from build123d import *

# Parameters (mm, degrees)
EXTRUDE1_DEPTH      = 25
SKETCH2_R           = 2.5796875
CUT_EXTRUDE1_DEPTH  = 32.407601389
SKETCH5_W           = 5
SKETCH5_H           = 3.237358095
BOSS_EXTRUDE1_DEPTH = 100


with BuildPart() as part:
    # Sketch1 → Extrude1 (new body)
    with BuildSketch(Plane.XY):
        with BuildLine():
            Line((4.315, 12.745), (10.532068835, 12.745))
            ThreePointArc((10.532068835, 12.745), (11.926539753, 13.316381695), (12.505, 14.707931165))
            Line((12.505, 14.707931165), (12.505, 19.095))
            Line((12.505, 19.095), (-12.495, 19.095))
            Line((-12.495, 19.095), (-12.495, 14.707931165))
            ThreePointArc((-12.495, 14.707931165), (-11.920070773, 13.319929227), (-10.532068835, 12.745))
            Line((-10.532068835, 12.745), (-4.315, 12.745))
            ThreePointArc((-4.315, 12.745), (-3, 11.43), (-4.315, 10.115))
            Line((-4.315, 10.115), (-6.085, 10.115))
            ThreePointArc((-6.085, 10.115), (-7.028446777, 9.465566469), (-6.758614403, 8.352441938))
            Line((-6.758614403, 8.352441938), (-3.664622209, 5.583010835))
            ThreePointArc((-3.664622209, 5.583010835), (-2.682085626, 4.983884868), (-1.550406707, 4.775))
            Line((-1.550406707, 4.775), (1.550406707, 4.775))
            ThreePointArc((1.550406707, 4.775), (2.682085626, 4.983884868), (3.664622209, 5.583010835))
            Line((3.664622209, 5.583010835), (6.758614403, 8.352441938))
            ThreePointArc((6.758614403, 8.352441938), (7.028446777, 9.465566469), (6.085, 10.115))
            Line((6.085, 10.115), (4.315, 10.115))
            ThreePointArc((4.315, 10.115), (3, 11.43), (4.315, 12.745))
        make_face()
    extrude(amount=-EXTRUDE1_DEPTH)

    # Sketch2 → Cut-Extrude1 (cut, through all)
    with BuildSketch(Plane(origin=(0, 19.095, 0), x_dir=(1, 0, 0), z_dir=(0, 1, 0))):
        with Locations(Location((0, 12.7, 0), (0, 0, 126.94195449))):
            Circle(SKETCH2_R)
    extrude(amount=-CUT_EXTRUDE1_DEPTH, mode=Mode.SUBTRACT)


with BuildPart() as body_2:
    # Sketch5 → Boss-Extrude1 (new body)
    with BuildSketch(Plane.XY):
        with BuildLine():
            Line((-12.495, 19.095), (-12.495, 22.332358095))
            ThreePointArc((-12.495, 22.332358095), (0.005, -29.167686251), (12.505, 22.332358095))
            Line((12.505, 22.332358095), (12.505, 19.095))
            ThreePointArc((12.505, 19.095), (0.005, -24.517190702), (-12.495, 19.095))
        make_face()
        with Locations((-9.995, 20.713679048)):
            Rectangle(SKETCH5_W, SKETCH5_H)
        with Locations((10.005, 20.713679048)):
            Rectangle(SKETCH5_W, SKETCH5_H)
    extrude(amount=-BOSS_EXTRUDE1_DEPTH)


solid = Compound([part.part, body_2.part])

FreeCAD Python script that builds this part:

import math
import FreeCAD as App
import Part
import Sketcher
Q = App.Units.Quantity

doc = App.newDocument("Part")
params = doc.addObject("Spreadsheet::Sheet", "Params")
for row, (alias, value) in enumerate([
    ("sketch1_width", "25 mm"),
    ("sketch1_radius", "1.01 mm"),
    ("sketch1_radius2", "3.17 mm"),
    ("sketch1_width2", "1.77 mm"),
    ("pad1_length", "25 mm"),
    ("sketch3_width", "5 mm"),
    ("pad2_length", "100 mm"),
], start=1):
    params.set(f"A{row}", alias)
    params.set(f"B{row}", "=" + value)
    params.setAlias(f"B{row}", alias)

body = doc.addObject("PartDesign::Body", "Body")

# Sketch on XY plane
sketch1 = body.newObject("Sketcher::SketchObject", "Sketch")
sketch1.AttachmentSupport = (doc.getObject("XY_Plane"), [""])
sketch1.MapMode = "FlatFace"
sketch1.addGeometry([
    Part.LineSegment(App.Vector(4.3, 12.7, 0), App.Vector(10.5, 12.7, 0)),  # 0
    Part.ArcOfCircle(Part.Circle(App.Vector(10.5, 14.7, 0), App.Vector(0, 0, 1), 2), math.radians(-90), math.radians(0)),  # 1
    Part.LineSegment(App.Vector(12.5, 14.7, 0), App.Vector(12.5, 19.1, 0)),  # 2
    Part.LineSegment(App.Vector(12.5, 19.1, 0), App.Vector(-12.5, 19.1, 0)),  # 3
    Part.LineSegment(App.Vector(-12.5, 19.1, 0), App.Vector(-12.5, 14.7, 0)),  # 4
    Part.ArcOfCircle(Part.Circle(App.Vector(-10.5, 14.7, 0), App.Vector(0, 0, 1), 2), math.radians(180), math.radians(270)),  # 5
    Part.LineSegment(App.Vector(-10.5, 12.7, 0), App.Vector(-4.3, 12.7, 0)),  # 6
    Part.ArcOfCircle(Part.Circle(App.Vector(-4.3, 11.4, 0), App.Vector(0, 0, 1), 1.3), math.radians(-90), math.radians(90)),  # 7
    Part.LineSegment(App.Vector(-4.3, 10.1, 0), App.Vector(-6.1, 10.1, 0)),  # 8
    Part.ArcOfCircle(Part.Circle(App.Vector(-6.1, 9.1, 0), App.Vector(0, 0, 1), 1), math.radians(90), math.radians(228)),  # 9
    Part.LineSegment(App.Vector(-6.8, 8.4, 0), App.Vector(-3.7, 5.6, 0)),  # 10
    Part.ArcOfCircle(Part.Circle(App.Vector(-1.6, 7.9, 0), App.Vector(0, 0, 1), 3.2), math.radians(-132), math.radians(-90)),  # 11
    Part.LineSegment(App.Vector(-1.6, 4.8, 0), App.Vector(1.6, 4.8, 0)),  # 12
    Part.ArcOfCircle(Part.Circle(App.Vector(1.6, 7.9, 0), App.Vector(0, 0, 1), 3.2), math.radians(-90), math.radians(-48)),  # 13
    Part.LineSegment(App.Vector(3.7, 5.6, 0), App.Vector(6.8, 8.4, 0)),  # 14
    Part.ArcOfCircle(Part.Circle(App.Vector(6.1, 9.1, 0), App.Vector(0, 0, 1), 1), math.radians(-48), math.radians(90)),  # 15
    Part.LineSegment(App.Vector(6.1, 10.1, 0), App.Vector(4.3, 10.1, 0)),  # 16
    Part.ArcOfCircle(Part.Circle(App.Vector(4.3, 11.4, 0), App.Vector(0, 0, 1), 1.3), math.radians(90), math.radians(270)),  # 17
], False)
sketch1.addConstraint([
    Sketcher.Constraint("Coincident", 0, 2, 1, 1),
    Sketcher.Constraint("Coincident", 1, 2, 2, 1),
    Sketcher.Constraint("Coincident", 2, 2, 3, 1),
    Sketcher.Constraint("Coincident", 3, 2, 4, 1),
    Sketcher.Constraint("Tangent", 4, 2, 5, 1),
    Sketcher.Constraint("Tangent", 5, 2, 6, 1),
    Sketcher.Constraint("Tangent", 6, 2, 7, 2),
    Sketcher.Constraint("Tangent", 7, 1, 8, 1),
    Sketcher.Constraint("Tangent", 8, 2, 9, 1),
    Sketcher.Constraint("Tangent", 9, 2, 10, 1),
    Sketcher.Constraint("Tangent", 10, 2, 11, 1),
    Sketcher.Constraint("Tangent", 11, 2, 12, 1),
    Sketcher.Constraint("Tangent", 12, 2, 13, 1),
    Sketcher.Constraint("Tangent", 13, 2, 14, 1),
    Sketcher.Constraint("Tangent", 14, 2, 15, 1),
    Sketcher.Constraint("Tangent", 15, 2, 16, 1),
    Sketcher.Constraint("Tangent", 16, 2, 17, 2),
    Sketcher.Constraint("Tangent", 17, 1, 0, 1),
    Sketcher.Constraint("Horizontal", 0),
    Sketcher.Constraint("Vertical", 2),
    Sketcher.Constraint("Horizontal", 3),
    Sketcher.Constraint("Vertical", 4),
    Sketcher.Constraint("Horizontal", 6),
    Sketcher.Constraint("Horizontal", 8),
    Sketcher.Constraint("Horizontal", 12),
    Sketcher.Constraint("Horizontal", 16),
    Sketcher.Constraint("Equal", 1, 5),
    Sketcher.Constraint("Equal", 11, 13),
    Sketcher.Constraint("Equal", 9, 15),
    Sketcher.Constraint("Equal", 7, 17),
    Sketcher.Constraint("Symmetric", 9, 3, 15, 3, -2),
    Sketcher.Constraint("Horizontal", 5, 3, 1, 2),
    Sketcher.Constraint("Horizontal", 10, 2, 13, 2),
    Sketcher.Constraint("Equal", 0, 6),
    Sketcher.Constraint("Equal", 8, 16),
    Sketcher.Constraint("DistanceX", 3, 2, 3, 1, Q("25 mm")),
    Sketcher.Constraint("Radius", 9, Q("1.01 mm")),
    Sketcher.Constraint("Radius", 11, Q("3.17 mm")),
    Sketcher.Constraint("Radius", 7, Q("1.315 mm")),
    Sketcher.Constraint("DistanceX", 8, 2, 8, 1, Q("1.77 mm")),
    Sketcher.Constraint("DistanceX", 7, 3, 15, 3, Q("10.4 mm")),
    Sketcher.Constraint("DistanceY", 13, 3, 0, 2, Q("4.8 mm")),
    Sketcher.Constraint("DistanceY", -1, 1, 7, 3, Q("11.43 mm")),
    Sketcher.Constraint("Radius", 1, Q("1.962931 mm")),
    Sketcher.Constraint("DistanceX", 0, 2, 1, 3, Q("0.01 mm")),
    Sketcher.Constraint("DistanceY", 0, 2, 2, 2, Q("6.35 mm")),
    Sketcher.Constraint("DistanceX", 12, 1, 12, 2, Q("3.100813 mm")),
])
sketch1.setExpression("Constraints[35]", "Params.sketch1_width")
sketch1.setExpression("Constraints[36]", "Params.sketch1_radius")
sketch1.setExpression("Constraints[37]", "Params.sketch1_radius2")
sketch1.setExpression("Constraints[39]", "Params.sketch1_width2")
pad1 = body.newObject("PartDesign::Pad", "Pad")
pad1.Profile = sketch1
pad1.setExpression("Length", "Params.pad1_length")
pad1.Reversed = True

# Sketch on XZ plane
sketch2 = body.newObject("Sketcher::SketchObject", "Sketch001")
sketch2.AttachmentSupport = (doc.getObject("XZ_Plane"), [""])
sketch2.MapMode = "FlatFace"
sketch2.AttachmentOffset = App.Placement(App.Vector(0, 0, -19.095), App.Rotation())
sketch2.addGeometry(Part.Circle(App.Vector(0, -12.7, 0), App.Vector(0, 0, 1), 2.6), False)
sketch2.addConstraint([
    Sketcher.Constraint("PointOnObject", 0, 3, -2),
    Sketcher.Constraint("DistanceY", 0, 3, -1, 1, Q("12.7 mm")),
    Sketcher.Constraint("Diameter", 0, Q("5.159375 mm")),
])
pocket1 = body.newObject("PartDesign::Pocket", "Pocket")
pocket1.Profile = sketch2
pocket1.Type = "ThroughAll"
pocket1.Reversed = True
body2 = doc.addObject("PartDesign::Body", "Body001")

# Sketch on XY plane
sketch3 = body2.newObject("Sketcher::SketchObject", "Sketch002")
sketch3.AttachmentSupport = (doc.getObject("XY_Plane001"), [""])
sketch3.MapMode = "FlatFace"
sketch3.addGeometry([
    Part.ArcOfCircle(Part.Circle(App.Vector(0, -1.9, 0), App.Vector(0, 0, 1), 27.3), math.radians(117), math.radians(423)),  # 0
    Part.LineSegment(App.Vector(12.5, 22.3, 0), App.Vector(7.5, 22.3, 0)),  # 1
    Part.LineSegment(App.Vector(7.5, 22.3, 0), App.Vector(7.5, 19.1, 0)),  # 2
    Part.LineSegment(App.Vector(7.5, 19.1, 0), App.Vector(12.5, 19.1, 0)),  # 3
    Part.ArcOfCircle(Part.Circle(App.Vector(0, -0.9, 0), App.Vector(0, 0, 1), 23.6), math.radians(122), math.radians(418)),  # 4
    Part.LineSegment(App.Vector(-12.5, 19.1, 0), App.Vector(-7.5, 19.1, 0)),  # 5
    Part.LineSegment(App.Vector(-7.5, 19.1, 0), App.Vector(-7.5, 22.3, 0)),  # 6
    Part.LineSegment(App.Vector(-7.5, 22.3, 0), App.Vector(-12.5, 22.3, 0)),  # 7
], False)
sketch3.addConstraint([
    Sketcher.Constraint("Coincident", 0, 2, 1, 1),
    Sketcher.Constraint("Coincident", 1, 2, 2, 1),
    Sketcher.Constraint("Coincident", 2, 2, 3, 1),
    Sketcher.Constraint("Coincident", 3, 2, 4, 2),
    Sketcher.Constraint("Coincident", 4, 1, 5, 1),
    Sketcher.Constraint("Coincident", 5, 2, 6, 1),
    Sketcher.Constraint("Coincident", 6, 2, 7, 1),
    Sketcher.Constraint("Coincident", 7, 2, 0, 1),
    Sketcher.Constraint("Horizontal", 1),
    Sketcher.Constraint("Vertical", 2),
    Sketcher.Constraint("Horizontal", 3),
    Sketcher.Constraint("Horizontal", 5),
    Sketcher.Constraint("Vertical", 6),
    Sketcher.Constraint("Horizontal", 7),
    Sketcher.Constraint("Horizontal", 3, 2, 4, 1),
    Sketcher.Constraint("Horizontal", 1, 2, 6, 2),
    Sketcher.Constraint("Vertical", 0, 3, 4, 3),
    Sketcher.Constraint("Vertical", 0, 2, 3, 2),
    Sketcher.Constraint("Equal", 3, 5),
    Sketcher.Constraint("DistanceX", 1, 2, 1, 1, Q("5 mm")),
    Sketcher.Constraint("DistanceX", 4, 1, 2, 2, Q("20 mm")),
    Sketcher.Constraint("Radius", 0, Q("27.267011 mm")),
    Sketcher.Constraint("DistanceX", -1, 1, 0, 3, Q("0.005 mm")),
    Sketcher.Constraint("DistanceY", -1, 1, 2, 2, Q("19.095 mm")),
    Sketcher.Constraint("Radius", 4, Q("23.597452 mm")),
    Sketcher.Constraint("DistanceY", 2, 2, 2, 1, Q("3.237358 mm")),
])
sketch3.setExpression("Constraints[19]", "Params.sketch3_width")
pad2 = body2.newObject("PartDesign::Pad", "Pad001")
pad2.Profile = sketch3
pad2.setExpression("Length", "Params.pad2_length")
pad2.Reversed = True

doc.recompute()
